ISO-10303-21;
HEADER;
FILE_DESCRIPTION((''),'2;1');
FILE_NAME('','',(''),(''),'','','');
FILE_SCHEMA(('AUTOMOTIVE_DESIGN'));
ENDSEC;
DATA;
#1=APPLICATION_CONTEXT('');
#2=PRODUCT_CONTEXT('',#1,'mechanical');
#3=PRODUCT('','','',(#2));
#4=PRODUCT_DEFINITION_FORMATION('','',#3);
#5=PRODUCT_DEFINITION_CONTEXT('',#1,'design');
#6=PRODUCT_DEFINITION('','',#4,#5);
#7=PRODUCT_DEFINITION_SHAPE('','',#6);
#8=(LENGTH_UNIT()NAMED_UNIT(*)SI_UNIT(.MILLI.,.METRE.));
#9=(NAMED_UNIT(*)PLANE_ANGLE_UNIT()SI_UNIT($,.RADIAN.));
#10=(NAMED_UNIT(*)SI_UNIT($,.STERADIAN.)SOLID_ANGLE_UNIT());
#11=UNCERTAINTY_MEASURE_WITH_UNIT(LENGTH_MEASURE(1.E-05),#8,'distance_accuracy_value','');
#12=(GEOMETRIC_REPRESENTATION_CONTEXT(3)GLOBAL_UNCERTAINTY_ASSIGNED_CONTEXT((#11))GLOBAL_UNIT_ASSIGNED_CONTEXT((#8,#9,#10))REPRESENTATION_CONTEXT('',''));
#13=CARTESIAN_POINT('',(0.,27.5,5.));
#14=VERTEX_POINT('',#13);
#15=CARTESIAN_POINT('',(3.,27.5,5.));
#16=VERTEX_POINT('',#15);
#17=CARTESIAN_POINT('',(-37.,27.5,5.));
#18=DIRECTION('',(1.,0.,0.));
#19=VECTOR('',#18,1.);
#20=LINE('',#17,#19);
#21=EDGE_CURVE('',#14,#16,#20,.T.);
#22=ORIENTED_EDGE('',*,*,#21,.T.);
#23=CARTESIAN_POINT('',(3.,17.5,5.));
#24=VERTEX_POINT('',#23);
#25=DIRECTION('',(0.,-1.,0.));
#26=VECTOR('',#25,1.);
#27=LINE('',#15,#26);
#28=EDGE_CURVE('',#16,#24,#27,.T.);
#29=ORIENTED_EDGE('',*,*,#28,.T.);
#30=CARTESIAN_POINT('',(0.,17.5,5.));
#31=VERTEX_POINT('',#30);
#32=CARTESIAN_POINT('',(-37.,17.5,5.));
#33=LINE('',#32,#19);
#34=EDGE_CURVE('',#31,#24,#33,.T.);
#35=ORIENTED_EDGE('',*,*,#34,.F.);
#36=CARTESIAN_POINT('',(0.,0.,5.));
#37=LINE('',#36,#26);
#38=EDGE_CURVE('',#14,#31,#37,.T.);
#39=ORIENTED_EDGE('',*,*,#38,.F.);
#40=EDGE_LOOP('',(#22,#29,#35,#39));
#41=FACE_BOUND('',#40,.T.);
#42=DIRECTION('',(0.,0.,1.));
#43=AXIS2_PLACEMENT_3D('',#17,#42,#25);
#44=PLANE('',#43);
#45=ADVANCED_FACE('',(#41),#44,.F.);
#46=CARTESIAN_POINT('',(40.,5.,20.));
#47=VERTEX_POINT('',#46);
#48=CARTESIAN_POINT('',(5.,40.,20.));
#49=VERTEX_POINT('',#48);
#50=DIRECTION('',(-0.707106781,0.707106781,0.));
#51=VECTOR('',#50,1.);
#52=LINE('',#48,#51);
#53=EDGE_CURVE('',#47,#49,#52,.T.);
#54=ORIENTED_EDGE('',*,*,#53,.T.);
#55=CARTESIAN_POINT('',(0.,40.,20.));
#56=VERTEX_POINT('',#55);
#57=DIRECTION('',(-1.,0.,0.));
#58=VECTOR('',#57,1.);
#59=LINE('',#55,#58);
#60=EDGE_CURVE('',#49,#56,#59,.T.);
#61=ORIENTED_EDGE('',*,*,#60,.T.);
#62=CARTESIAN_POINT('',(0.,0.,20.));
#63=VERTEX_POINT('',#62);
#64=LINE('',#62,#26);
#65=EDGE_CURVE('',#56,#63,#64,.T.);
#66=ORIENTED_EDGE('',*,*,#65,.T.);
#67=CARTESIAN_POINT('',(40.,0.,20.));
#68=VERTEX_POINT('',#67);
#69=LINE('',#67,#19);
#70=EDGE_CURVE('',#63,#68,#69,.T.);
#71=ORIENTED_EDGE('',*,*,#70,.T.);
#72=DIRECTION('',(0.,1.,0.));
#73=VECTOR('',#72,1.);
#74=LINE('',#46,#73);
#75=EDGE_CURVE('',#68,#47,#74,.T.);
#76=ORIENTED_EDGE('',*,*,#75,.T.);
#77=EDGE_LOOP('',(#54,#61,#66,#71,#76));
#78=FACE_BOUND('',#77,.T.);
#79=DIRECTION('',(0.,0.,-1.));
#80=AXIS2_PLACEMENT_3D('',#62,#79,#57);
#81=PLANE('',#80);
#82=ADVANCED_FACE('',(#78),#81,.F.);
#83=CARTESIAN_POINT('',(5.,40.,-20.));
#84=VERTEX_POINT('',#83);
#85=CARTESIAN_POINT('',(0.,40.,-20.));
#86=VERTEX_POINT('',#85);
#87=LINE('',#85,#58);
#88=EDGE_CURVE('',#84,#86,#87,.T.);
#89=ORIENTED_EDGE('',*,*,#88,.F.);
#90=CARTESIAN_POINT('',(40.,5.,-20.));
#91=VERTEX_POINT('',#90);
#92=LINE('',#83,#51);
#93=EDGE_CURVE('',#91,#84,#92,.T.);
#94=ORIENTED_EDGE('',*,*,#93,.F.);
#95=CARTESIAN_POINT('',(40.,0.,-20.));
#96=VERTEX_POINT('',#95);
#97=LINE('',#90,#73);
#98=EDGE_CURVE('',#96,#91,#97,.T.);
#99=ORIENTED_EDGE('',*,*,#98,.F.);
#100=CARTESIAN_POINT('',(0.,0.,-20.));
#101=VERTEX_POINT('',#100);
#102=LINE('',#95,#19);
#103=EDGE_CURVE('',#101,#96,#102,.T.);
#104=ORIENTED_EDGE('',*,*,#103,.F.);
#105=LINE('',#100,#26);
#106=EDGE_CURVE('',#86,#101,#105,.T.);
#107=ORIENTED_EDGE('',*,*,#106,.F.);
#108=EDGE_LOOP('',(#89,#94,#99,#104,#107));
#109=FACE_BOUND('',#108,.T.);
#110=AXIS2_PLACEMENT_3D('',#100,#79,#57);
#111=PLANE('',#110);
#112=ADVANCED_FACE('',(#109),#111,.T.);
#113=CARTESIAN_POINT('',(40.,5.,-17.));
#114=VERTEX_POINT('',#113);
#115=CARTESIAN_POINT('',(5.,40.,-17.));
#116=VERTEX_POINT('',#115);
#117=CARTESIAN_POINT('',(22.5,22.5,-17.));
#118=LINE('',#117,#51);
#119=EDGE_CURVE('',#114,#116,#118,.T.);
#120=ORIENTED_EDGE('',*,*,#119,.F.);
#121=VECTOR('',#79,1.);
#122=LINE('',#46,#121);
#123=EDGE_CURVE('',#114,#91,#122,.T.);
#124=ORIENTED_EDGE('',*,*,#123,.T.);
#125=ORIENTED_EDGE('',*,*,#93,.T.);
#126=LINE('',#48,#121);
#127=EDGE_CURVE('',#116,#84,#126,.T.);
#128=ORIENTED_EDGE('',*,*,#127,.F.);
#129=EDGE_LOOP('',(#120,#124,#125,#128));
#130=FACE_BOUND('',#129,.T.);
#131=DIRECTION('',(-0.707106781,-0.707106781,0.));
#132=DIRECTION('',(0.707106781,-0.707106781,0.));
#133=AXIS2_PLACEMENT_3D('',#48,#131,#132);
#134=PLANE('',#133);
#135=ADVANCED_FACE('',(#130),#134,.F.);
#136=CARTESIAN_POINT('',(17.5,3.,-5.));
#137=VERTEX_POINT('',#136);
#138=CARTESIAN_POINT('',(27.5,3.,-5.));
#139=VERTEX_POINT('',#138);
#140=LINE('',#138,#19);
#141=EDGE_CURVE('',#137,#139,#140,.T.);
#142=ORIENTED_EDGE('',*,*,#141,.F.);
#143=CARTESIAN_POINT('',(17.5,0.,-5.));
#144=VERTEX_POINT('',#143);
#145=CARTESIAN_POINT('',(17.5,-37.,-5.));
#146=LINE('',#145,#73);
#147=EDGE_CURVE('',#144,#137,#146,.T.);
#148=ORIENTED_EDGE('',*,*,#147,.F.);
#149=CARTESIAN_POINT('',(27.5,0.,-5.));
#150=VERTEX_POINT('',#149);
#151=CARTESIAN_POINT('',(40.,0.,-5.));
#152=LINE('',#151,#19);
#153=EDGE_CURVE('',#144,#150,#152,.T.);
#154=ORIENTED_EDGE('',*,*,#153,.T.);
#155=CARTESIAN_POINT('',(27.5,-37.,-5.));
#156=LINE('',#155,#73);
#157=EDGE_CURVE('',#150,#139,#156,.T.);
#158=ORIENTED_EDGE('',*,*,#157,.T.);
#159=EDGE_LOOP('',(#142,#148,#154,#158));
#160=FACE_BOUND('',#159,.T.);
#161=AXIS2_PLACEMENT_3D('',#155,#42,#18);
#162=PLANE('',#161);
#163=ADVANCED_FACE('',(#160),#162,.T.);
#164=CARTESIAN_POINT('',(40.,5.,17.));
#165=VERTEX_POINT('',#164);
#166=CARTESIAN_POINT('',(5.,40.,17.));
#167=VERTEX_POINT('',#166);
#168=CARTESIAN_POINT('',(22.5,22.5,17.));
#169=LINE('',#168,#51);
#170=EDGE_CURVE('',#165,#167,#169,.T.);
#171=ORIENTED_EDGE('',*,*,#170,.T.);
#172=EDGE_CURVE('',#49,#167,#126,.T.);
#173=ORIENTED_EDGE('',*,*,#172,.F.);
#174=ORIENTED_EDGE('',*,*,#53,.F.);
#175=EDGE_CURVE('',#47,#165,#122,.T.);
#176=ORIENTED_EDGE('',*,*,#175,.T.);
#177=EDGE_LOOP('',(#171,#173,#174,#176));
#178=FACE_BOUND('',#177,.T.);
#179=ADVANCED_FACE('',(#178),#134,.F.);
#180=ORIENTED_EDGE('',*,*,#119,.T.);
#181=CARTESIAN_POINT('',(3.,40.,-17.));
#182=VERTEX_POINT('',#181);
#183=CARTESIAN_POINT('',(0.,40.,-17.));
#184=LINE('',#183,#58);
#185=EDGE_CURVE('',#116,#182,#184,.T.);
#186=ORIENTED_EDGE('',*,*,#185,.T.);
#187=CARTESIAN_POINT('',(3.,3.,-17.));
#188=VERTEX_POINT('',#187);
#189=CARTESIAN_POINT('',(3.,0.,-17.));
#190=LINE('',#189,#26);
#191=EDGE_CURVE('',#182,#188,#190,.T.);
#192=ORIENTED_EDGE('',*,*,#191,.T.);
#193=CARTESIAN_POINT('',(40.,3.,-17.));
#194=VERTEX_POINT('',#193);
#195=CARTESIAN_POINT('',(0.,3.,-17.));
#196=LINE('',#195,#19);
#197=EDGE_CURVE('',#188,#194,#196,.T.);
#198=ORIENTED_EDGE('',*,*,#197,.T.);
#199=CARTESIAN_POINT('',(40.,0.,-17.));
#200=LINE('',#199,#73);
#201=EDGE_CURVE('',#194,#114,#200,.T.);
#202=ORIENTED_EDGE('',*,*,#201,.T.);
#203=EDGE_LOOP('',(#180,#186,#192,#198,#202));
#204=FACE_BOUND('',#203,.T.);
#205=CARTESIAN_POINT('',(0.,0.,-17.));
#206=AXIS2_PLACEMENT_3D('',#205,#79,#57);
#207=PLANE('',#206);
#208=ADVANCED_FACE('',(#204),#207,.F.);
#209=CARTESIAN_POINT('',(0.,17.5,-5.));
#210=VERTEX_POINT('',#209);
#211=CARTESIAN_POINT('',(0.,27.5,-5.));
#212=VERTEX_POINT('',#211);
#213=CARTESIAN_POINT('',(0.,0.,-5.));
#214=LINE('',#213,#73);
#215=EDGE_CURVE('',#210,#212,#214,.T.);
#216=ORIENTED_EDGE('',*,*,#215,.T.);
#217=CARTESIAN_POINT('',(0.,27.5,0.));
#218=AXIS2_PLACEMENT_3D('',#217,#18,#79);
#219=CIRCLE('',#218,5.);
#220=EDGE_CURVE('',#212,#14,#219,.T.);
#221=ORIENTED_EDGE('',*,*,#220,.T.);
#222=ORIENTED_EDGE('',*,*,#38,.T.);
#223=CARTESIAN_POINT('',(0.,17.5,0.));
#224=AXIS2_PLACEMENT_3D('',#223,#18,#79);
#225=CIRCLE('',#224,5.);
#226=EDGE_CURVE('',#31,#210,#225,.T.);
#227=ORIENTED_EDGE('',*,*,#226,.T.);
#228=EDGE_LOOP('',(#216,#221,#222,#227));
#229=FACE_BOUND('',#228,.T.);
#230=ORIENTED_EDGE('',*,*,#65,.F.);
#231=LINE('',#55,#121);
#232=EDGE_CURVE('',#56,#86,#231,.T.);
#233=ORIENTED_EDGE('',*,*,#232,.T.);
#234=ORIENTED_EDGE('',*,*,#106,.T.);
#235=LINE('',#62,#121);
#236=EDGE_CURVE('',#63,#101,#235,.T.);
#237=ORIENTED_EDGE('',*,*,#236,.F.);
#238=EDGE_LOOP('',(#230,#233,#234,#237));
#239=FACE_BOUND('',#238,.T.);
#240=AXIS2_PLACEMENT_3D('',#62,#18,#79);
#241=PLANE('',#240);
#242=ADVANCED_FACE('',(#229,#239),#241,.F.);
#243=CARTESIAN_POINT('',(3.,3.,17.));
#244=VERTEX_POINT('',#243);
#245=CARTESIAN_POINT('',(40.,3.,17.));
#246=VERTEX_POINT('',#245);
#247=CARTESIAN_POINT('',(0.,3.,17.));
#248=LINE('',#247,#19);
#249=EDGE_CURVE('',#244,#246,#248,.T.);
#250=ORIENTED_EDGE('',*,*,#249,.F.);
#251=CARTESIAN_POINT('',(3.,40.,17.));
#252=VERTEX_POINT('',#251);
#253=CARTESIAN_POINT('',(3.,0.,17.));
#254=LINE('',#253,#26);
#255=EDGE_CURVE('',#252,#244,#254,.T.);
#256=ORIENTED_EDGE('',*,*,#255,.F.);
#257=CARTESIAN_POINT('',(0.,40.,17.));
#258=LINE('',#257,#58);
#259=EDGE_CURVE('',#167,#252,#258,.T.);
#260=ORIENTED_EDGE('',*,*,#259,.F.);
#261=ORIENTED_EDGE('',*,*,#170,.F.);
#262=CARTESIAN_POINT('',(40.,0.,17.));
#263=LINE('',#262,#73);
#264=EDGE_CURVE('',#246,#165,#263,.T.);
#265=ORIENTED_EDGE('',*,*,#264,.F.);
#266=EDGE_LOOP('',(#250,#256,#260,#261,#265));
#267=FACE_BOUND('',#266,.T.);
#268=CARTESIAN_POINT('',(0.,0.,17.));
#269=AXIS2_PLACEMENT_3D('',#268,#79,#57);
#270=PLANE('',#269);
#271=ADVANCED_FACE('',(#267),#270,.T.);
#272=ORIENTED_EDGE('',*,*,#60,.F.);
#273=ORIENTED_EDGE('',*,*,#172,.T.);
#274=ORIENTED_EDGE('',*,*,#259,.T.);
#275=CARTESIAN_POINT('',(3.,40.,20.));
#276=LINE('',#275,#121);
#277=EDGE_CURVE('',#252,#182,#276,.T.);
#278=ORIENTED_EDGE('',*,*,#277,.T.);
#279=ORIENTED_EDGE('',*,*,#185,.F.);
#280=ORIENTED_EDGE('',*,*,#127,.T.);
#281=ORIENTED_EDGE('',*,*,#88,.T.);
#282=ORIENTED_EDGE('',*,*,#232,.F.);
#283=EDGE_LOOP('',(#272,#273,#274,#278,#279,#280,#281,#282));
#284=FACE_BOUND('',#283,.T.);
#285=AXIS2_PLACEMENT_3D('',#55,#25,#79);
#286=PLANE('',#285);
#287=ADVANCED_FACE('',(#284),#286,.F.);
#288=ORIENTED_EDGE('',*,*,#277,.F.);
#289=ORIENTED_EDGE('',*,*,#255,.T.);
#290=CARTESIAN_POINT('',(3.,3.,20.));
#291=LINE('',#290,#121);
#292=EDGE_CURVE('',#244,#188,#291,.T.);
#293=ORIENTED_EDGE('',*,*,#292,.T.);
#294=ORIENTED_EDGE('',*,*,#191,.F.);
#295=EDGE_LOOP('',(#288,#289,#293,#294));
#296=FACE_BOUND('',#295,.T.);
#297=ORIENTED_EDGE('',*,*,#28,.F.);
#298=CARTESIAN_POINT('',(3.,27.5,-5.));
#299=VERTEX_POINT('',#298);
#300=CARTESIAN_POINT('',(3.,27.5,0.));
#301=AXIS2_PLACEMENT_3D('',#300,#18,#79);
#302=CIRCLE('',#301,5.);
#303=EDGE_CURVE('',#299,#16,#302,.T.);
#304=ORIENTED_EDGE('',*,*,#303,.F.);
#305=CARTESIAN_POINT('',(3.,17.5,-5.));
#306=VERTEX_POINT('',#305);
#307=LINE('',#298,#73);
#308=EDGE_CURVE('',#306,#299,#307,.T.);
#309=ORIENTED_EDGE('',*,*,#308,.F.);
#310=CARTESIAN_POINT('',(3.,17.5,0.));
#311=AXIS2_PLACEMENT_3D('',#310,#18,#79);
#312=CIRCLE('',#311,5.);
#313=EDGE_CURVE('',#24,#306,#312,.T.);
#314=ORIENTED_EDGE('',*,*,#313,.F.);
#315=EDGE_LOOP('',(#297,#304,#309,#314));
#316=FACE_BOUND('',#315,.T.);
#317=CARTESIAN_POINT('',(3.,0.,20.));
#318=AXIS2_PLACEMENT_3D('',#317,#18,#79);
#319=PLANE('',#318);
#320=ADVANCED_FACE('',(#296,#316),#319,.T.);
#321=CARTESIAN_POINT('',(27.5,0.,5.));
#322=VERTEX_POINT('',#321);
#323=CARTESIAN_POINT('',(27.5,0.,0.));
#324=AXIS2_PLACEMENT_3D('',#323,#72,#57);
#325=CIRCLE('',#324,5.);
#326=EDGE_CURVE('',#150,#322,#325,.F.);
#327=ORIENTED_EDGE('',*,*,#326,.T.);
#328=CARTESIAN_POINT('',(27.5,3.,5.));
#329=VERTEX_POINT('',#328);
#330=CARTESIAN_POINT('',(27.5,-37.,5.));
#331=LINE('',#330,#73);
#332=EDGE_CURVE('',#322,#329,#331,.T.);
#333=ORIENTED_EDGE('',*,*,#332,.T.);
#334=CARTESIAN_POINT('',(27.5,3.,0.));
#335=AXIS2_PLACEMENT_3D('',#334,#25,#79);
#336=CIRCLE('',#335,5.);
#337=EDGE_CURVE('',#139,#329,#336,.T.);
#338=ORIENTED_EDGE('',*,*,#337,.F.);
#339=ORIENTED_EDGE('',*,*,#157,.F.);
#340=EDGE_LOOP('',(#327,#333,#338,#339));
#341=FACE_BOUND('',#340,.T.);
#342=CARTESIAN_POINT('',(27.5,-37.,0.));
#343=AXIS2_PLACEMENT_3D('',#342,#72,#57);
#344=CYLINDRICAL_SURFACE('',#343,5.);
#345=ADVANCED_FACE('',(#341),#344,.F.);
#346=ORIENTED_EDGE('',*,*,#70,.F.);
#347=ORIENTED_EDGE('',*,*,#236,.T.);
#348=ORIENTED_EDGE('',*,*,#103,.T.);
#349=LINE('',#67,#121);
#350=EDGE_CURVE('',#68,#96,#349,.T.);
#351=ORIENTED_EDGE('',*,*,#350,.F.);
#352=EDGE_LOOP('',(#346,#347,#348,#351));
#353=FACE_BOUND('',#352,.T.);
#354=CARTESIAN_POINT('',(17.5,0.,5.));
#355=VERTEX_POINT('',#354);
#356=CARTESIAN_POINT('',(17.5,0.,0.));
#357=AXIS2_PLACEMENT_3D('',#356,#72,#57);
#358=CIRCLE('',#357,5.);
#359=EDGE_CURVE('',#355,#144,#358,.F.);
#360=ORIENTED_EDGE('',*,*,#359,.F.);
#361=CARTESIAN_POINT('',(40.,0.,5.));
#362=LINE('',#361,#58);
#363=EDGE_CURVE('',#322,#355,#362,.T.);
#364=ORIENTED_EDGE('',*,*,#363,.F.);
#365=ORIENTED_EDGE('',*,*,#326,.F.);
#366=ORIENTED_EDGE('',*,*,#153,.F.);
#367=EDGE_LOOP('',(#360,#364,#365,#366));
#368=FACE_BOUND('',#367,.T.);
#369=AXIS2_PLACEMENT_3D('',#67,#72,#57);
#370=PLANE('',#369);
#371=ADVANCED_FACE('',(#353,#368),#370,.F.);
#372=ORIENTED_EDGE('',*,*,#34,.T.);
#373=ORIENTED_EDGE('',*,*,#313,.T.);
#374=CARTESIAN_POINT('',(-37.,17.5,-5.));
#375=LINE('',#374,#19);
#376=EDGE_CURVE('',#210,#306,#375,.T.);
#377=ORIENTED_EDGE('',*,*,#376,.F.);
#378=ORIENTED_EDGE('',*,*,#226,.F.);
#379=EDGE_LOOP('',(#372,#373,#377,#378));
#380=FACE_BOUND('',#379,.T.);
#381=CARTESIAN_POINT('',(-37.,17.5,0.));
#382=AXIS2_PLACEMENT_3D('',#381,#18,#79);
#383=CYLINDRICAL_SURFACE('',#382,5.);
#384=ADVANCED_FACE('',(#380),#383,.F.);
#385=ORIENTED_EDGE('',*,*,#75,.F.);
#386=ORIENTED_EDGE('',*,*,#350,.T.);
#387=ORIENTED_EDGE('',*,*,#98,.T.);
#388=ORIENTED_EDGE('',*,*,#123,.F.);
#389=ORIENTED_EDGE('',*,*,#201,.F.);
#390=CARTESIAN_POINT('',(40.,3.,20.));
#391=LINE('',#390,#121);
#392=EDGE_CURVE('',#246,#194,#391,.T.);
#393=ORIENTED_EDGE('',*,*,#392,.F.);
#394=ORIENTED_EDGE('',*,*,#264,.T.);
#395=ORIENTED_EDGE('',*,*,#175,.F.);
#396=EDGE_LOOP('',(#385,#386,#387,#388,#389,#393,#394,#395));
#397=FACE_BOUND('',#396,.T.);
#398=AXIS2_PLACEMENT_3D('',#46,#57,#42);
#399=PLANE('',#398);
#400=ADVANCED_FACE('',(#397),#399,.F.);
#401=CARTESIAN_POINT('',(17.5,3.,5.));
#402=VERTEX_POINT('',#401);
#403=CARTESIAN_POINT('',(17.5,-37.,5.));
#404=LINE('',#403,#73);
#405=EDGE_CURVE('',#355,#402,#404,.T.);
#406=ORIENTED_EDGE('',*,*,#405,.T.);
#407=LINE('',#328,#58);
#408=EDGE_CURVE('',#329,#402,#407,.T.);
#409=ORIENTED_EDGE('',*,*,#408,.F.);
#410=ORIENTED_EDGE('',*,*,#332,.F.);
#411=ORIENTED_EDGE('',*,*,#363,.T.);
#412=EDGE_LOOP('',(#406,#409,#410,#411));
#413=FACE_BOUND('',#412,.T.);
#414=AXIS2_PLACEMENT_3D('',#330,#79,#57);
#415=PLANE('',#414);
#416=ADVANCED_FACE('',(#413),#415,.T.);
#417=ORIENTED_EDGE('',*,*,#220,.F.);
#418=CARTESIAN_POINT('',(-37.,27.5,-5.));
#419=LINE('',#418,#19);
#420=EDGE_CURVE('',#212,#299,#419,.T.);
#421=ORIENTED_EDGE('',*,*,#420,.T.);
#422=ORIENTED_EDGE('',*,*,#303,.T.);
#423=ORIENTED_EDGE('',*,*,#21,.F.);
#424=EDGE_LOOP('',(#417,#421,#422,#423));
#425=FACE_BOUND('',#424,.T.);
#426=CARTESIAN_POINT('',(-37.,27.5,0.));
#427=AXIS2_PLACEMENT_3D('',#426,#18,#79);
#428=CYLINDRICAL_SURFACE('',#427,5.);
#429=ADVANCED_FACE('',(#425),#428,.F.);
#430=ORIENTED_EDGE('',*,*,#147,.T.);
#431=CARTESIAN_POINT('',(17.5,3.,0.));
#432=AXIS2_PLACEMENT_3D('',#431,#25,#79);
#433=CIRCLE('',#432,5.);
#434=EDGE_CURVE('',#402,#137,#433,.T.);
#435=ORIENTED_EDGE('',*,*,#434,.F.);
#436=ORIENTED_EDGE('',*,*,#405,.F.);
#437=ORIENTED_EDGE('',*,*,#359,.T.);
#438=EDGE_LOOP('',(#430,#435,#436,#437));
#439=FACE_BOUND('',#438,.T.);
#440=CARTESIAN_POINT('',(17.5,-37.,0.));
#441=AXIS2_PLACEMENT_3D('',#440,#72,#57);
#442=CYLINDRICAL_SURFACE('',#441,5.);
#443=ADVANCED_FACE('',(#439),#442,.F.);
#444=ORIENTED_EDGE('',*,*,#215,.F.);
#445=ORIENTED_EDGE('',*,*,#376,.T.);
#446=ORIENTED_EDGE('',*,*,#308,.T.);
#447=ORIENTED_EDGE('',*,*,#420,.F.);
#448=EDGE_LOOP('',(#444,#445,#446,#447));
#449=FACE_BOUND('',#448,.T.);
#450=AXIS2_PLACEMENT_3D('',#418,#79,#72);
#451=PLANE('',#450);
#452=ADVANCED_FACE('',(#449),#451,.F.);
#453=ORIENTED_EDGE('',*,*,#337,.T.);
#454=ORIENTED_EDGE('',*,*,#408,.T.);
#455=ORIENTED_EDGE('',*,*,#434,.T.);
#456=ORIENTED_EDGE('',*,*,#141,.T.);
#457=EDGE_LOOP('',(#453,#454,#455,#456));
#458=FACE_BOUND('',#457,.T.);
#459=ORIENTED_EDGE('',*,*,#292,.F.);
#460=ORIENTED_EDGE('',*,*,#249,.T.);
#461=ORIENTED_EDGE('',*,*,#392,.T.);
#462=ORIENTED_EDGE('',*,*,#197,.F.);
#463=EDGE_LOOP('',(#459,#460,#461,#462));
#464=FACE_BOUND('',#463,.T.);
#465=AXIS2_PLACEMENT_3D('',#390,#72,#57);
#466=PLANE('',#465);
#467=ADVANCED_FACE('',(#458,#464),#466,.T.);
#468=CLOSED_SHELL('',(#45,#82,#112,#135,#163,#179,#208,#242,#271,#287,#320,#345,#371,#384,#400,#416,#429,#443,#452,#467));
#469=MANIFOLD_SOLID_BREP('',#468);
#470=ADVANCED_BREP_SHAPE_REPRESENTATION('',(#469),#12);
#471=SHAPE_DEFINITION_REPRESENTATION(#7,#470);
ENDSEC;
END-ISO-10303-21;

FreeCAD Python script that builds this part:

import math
import FreeCAD as App
import Part
import Sketcher
from FreeCAD import Vector
Q = App.Units.Quantity


def faces_at(feature, points):
    """Names of the faces that lie closest to the given points."""
    faces = feature.Shape.Faces
    near = lambda p: min(range(len(faces)), key=lambda i: faces[i].distToShape(Part.Vertex(*p))[0])
    return sorted({f"Face{near(p) + 1}" for p in points})

doc = App.newDocument("Part")
body = doc.addObject("PartDesign::Body", "Body")

# Sketch on XY plane
sketch1 = body.newObject("Sketcher::SketchObject", "Sketch")
sketch1.AttachmentSupport = (doc.getObject("XY_Plane"), [""])
sketch1.MapMode = "FlatFace"
sketch1.addGeometry(Part.LineSegment(Vector(0, 0, 0), Vector(40, 0, 0)), False)
sketch1.addGeometry(Part.LineSegment(Vector(40, 0, 0), Vector(40, 5, 0)), False)
sketch1.addGeometry(Part.LineSegment(Vector(40, 5, 0), Vector(5, 40, 0)), False)
sketch1.addGeometry(Part.LineSegment(Vector(5, 40, 0), Vector(0, 40, 0)), False)
sketch1.addGeometry(Part.LineSegment(Vector(0, 40, 0), Vector(0, 0, 0)), False)
sketch1.addConstraint(Sketcher.Constraint("Coincident", 0, 2, 1, 1))
sketch1.addConstraint(Sketcher.Constraint("Coincident", 1, 2, 2, 1))
sketch1.addConstraint(Sketcher.Constraint("Coincident", 2, 2, 3, 1))
sketch1.addConstraint(Sketcher.Constraint("Coincident", 3, 2, 4, 1))
sketch1.addConstraint(Sketcher.Constraint("Coincident", 4, 2, 0, 1))
sketch1.addConstraint(Sketcher.Constraint("Horizontal", 0))
sketch1.addConstraint(Sketcher.Constraint("Vertical", 1))
sketch1.addConstraint(Sketcher.Constraint("Horizontal", 3))
sketch1.addConstraint(Sketcher.Constraint("Vertical", 4))
sketch1.addConstraint(Sketcher.Constraint("Coincident", 4, 2, -1, 1))
sketch1.addConstraint(Sketcher.Constraint("Equal", 3, 1))
sketch1.addConstraint(Sketcher.Constraint("Equal", 0, 4))
sketch1.addConstraint(Sketcher.Constraint("DistanceX", 0, 1, 0, 2, Q("40 mm")))
sketch1.addConstraint(Sketcher.Constraint("DistanceX", 3, 2, 3, 1, Q("5 mm")))
pad1 = body.newObject("PartDesign::Pad", "Pad")
pad1.Profile = sketch1
pad1.Length = 40
pad1.Midplane = True
doc.recompute()

thickness = body.newObject("PartDesign::Thickness", "Thickness")
thickness.Base = (pad1, faces_at(pad1, [(22.5, 22.5, 0), (40, 2.5, 0), (2.5, 40, 0)]))
thickness.Value = 3
thickness.Reversed = True
thickness.Join = "Intersection"

# Sketch on YZ plane
sketch2 = body.newObject("Sketcher::SketchObject", "Sketch001")
sketch2.AttachmentSupport = (doc.getObject("YZ_Plane"), [""])
sketch2.MapMode = "FlatFace"
sketch2.AttachmentOffset = App.Placement(Vector(0, 0, 3), App.Rotation())
sketch2.addGeometry(Part.LineSegment(Vector(18, -5, 0), Vector(28, -5, 0)), False)
sketch2.addGeometry(Part.ArcOfCircle(Part.Circle(Vector(28, 0, 0), Vector(0, 0, 1), 5), math.radians(-90), math.radians(90)), False)
sketch2.addGeometry(Part.LineSegment(Vector(28, 5, 0), Vector(18, 5, 0)), False)
sketch2.addGeometry(Part.ArcOfCircle(Part.Circle(Vector(18, 0, 0), Vector(0, 0, 1), 5), math.radians(90), math.radians(270)), False)
sketch2.addConstraint(Sketcher.Constraint("Tangent", 0, 2, 1, 1))
sketch2.addConstraint(Sketcher.Constraint("Tangent", 1, 2, 2, 1))
sketch2.addConstraint(Sketcher.Constraint("Tangent", 2, 2, 3, 1))
sketch2.addConstraint(Sketcher.Constraint("Tangent", 3, 2, 0, 1))
sketch2.addConstraint(Sketcher.Constraint("Horizontal", 0))
sketch2.addConstraint(Sketcher.Constraint("Horizontal", 2))
sketch2.addConstraint(Sketcher.Constraint("PointOnObject", 1, 3, -1))
sketch2.addConstraint(Sketcher.Constraint("Radius", 1, Q("5 mm")))
sketch2.addConstraint(Sketcher.Constraint("DistanceX", 0, 1, 0, 2, Q("10 mm")))
sketch2.addConstraint(Sketcher.Constraint("DistanceX", -1, 1, 1, 3, Q("27.5 mm")))
pocket1 = body.newObject("PartDesign::Pocket", "Pocket")
pocket1.Profile = sketch2
pocket1.Length = 40
doc.recompute()

datumplane = body.newObject("PartDesign::Plane", "DatumPlane")
datumplane.Placement = App.Placement(Vector(0, 0, 0), App.Rotation(Vector(-0.707106781, -0.707106781, 0), Vector(0, 0, -1), Vector(0.707106781, -0.707106781, 0), "ZXY"))
mirrored = body.newObject("PartDesign::Mirrored", "Mirrored")
mirrored.Originals = [pocket1]
mirrored.MirrorPlane = (datumplane, [""])
body.Tip = mirrored

doc.recompute()
